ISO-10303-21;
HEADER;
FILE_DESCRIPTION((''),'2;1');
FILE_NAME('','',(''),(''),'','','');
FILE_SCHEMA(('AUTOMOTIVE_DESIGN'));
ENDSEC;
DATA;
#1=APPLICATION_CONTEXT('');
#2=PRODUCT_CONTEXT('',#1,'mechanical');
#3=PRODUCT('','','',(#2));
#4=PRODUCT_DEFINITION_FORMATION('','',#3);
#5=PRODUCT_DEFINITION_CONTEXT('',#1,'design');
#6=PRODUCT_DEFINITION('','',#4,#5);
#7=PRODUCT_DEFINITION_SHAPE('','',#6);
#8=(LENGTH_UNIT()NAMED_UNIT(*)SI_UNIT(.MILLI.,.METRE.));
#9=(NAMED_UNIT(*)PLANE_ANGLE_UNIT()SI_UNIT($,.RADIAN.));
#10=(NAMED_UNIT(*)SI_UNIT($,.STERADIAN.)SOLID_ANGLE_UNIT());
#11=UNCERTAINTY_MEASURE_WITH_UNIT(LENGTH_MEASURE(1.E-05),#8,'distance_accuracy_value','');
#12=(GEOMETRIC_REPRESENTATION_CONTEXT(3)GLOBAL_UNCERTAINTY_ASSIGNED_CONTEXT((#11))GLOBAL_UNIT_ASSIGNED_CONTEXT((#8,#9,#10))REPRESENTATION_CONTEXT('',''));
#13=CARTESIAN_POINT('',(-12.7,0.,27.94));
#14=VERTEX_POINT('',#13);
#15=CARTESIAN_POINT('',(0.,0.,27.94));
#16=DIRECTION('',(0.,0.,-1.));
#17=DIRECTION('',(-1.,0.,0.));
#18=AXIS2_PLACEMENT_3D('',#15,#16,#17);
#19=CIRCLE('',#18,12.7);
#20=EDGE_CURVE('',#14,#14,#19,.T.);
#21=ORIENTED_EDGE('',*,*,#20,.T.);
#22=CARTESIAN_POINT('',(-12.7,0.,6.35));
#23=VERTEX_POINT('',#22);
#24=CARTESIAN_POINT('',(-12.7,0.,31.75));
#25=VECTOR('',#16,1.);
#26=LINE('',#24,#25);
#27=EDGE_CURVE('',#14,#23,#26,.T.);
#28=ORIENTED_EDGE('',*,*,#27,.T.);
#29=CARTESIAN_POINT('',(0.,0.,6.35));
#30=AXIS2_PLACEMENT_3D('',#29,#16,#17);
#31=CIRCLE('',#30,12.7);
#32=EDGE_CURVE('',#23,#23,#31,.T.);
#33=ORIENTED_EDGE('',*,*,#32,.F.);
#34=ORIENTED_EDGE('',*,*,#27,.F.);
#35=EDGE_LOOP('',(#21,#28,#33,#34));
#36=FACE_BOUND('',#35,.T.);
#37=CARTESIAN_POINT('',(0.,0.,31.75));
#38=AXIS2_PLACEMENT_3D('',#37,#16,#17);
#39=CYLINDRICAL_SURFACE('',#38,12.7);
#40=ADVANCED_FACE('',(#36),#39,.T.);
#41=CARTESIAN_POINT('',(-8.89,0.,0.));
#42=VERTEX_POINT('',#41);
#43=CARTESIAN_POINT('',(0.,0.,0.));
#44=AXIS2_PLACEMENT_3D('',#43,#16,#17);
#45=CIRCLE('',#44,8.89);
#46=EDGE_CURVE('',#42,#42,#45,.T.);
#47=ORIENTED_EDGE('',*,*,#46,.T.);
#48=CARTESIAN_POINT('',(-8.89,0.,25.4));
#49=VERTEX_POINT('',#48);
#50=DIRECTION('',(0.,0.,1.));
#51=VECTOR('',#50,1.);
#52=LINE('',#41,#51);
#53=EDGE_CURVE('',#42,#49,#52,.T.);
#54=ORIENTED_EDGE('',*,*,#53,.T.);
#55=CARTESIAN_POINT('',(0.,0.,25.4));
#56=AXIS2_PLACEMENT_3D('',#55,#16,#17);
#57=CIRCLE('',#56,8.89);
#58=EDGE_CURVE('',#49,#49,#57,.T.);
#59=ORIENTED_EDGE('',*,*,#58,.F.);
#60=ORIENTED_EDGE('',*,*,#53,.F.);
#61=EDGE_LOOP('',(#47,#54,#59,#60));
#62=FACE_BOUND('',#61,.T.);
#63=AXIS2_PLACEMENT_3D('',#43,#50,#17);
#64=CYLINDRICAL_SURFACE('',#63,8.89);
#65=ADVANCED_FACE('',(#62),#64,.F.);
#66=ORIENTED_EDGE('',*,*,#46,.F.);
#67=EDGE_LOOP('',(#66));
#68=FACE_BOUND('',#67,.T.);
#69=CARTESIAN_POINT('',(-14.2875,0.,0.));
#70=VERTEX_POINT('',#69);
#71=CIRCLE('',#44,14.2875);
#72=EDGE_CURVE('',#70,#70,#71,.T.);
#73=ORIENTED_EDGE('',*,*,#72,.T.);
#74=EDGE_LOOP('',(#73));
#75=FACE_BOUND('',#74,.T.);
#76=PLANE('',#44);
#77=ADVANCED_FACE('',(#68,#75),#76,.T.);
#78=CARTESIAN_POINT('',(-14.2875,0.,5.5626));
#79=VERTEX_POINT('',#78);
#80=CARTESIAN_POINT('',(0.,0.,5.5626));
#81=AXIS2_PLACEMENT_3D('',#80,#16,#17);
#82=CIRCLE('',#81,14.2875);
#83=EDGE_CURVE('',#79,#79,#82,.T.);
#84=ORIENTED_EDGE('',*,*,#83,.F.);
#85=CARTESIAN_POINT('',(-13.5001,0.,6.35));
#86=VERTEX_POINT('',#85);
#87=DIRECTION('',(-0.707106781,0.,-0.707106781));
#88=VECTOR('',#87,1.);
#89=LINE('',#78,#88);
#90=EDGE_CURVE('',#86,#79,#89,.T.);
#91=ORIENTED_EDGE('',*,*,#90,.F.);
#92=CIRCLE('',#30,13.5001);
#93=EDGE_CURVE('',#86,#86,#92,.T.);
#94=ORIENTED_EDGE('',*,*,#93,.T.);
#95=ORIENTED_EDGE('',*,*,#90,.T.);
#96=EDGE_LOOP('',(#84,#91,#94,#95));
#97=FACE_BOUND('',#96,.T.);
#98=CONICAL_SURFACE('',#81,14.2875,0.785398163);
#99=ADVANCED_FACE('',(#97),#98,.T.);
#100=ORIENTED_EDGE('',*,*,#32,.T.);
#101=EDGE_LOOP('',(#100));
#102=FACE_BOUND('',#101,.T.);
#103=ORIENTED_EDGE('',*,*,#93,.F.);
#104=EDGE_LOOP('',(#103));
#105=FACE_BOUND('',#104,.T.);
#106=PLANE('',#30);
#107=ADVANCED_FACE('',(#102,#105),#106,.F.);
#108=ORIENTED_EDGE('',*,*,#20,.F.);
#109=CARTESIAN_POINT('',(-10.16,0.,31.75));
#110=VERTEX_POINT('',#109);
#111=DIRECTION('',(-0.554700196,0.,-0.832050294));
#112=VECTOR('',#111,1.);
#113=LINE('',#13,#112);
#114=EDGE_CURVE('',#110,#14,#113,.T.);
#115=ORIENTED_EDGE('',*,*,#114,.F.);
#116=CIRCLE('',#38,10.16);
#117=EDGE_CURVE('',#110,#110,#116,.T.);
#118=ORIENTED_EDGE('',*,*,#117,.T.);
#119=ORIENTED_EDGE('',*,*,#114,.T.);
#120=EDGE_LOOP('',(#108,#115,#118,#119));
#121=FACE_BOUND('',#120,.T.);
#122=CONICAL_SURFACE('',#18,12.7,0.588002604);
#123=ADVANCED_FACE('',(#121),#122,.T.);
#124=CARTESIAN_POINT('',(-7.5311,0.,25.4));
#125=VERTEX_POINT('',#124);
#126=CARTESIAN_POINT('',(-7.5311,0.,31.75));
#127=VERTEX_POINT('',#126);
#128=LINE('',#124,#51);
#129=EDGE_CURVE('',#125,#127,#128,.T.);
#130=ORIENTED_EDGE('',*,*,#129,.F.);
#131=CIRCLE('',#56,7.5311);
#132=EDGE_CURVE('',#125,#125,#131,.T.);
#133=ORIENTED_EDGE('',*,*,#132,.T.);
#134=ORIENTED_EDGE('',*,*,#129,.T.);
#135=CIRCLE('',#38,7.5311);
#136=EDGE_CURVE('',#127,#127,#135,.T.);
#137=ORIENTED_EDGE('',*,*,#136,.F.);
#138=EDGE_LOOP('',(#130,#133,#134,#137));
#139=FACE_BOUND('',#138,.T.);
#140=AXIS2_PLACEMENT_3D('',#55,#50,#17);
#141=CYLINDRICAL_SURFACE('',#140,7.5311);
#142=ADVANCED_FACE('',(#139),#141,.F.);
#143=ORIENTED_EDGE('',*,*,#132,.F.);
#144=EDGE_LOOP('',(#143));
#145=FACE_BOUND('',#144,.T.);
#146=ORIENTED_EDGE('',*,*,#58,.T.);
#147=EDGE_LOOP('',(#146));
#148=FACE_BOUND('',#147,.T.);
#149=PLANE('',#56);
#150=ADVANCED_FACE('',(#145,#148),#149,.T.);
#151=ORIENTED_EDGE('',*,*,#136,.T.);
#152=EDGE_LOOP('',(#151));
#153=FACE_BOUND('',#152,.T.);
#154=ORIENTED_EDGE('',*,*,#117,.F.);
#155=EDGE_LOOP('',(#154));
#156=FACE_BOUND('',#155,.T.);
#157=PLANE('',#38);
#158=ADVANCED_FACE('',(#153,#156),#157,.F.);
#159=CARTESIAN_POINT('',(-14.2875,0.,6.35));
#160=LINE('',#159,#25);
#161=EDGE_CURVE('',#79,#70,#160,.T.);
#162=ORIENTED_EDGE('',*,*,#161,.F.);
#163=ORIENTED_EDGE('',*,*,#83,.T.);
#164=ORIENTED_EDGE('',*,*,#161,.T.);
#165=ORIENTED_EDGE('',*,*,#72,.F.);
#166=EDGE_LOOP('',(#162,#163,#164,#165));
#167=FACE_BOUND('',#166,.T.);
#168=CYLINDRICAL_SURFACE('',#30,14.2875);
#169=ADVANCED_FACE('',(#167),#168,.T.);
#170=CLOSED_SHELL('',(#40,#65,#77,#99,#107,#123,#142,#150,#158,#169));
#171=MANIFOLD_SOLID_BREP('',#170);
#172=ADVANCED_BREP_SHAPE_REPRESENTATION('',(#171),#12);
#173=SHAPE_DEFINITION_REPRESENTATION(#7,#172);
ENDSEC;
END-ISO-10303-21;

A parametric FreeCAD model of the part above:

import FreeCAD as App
import Part
import Sketcher
Q = App.Units.Quantity


def edges_at(feature, points):
    """Names of the edges that pass closest to the given points."""
    edges = feature.Shape.Edges
    near = lambda p: min(range(len(edges)), key=lambda i: edges[i].distToShape(Part.Vertex(*p))[0])
    return sorted({f"Edge{near(p) + 1}" for p in points})


def add_polygon(sketch, points):
    """Adds a closed chain of lines whose ends are joined by coincident constraints."""
    first, n = sketch.GeometryCount, len(points)
    for a, b in zip(points, points[1:] + points[:1]):
        sketch.addGeometry(Part.LineSegment(App.Vector(*a, 0), App.Vector(*b, 0)), False)
    for i in range(n):
        sketch.addConstraint(Sketcher.Constraint("Coincident", first + i, 2, first + (i + 1) % n, 1))

doc = App.newDocument("Part")
body = doc.addObject("PartDesign::Body", "Body")

# Sketch on XZ plane
sketch1 = body.newObject("Sketcher::SketchObject", "Sketch")
sketch1.AttachmentSupport = (doc.getObject("XZ_Plane"), [""])
sketch1.MapMode = "FlatFace"
add_polygon(sketch1, [(-14.3, 0), (-8.9, 0), (-8.9, 25.4), (-7.5, 25.4), (-7.5, 31.8), (-12.7, 31.8), (-12.7, 6.3), (-14.3, 6.3)])  # lines 0-7
sketch1.addConstraint([
    Sketcher.Constraint("Horizontal", 0),
    Sketcher.Constraint("Vertical", 1),
    Sketcher.Constraint("Horizontal", 2),
    Sketcher.Constraint("Vertical", 3),
    Sketcher.Constraint("Horizontal", 4),
    Sketcher.Constraint("Vertical", 5),
    Sketcher.Constraint("Horizontal", 6),
    Sketcher.Constraint("Vertical", 7),
    Sketcher.Constraint("PointOnObject", 0, 2, -1),
    Sketcher.Constraint("Equal", 1, 5),
    Sketcher.Constraint("DistanceY", 1, 1, 1, 2, Q("1 in")),
    Sketcher.Constraint("DistanceY", 3, 1, 3, 2, Q("0.25 in")),
    Sketcher.Constraint("DistanceX", 4, 2, -1, 1, Q("0.5 in")),
    Sketcher.Constraint("DistanceX", 6, 2, 6, 1, Q("0.0625 in")),
    Sketcher.Constraint("DistanceX", 0, 2, -1, 1, Q("0.35 in")),
    Sketcher.Constraint("DistanceX", 2, 1, 2, 2, Q("0.0535 in")),
])
revolution = body.newObject("PartDesign::Revolution", "Revolution")
revolution.Profile = sketch1
revolution.ReferenceAxis = (sketch1, ["V_Axis"])
revolution.Angle = 360
doc.recompute()

chamfer = body.newObject("PartDesign::Chamfer", "Chamfer")
chamfer.Base = (revolution, edges_at(revolution, [(12.7, 0, 31.75)]))
chamfer.ChamferType = "Two distances"
chamfer.Size = Q("0.1 in")
chamfer.Size2 = Q("0.15 in")
doc.recompute()

chamfer2 = body.newObject("PartDesign::Chamfer", "Chamfer001")
chamfer2.Base = (chamfer, edges_at(chamfer, [(14.287, 0, 6.35)]))
chamfer2.Size = Q("0.031 in")

doc.recompute()
